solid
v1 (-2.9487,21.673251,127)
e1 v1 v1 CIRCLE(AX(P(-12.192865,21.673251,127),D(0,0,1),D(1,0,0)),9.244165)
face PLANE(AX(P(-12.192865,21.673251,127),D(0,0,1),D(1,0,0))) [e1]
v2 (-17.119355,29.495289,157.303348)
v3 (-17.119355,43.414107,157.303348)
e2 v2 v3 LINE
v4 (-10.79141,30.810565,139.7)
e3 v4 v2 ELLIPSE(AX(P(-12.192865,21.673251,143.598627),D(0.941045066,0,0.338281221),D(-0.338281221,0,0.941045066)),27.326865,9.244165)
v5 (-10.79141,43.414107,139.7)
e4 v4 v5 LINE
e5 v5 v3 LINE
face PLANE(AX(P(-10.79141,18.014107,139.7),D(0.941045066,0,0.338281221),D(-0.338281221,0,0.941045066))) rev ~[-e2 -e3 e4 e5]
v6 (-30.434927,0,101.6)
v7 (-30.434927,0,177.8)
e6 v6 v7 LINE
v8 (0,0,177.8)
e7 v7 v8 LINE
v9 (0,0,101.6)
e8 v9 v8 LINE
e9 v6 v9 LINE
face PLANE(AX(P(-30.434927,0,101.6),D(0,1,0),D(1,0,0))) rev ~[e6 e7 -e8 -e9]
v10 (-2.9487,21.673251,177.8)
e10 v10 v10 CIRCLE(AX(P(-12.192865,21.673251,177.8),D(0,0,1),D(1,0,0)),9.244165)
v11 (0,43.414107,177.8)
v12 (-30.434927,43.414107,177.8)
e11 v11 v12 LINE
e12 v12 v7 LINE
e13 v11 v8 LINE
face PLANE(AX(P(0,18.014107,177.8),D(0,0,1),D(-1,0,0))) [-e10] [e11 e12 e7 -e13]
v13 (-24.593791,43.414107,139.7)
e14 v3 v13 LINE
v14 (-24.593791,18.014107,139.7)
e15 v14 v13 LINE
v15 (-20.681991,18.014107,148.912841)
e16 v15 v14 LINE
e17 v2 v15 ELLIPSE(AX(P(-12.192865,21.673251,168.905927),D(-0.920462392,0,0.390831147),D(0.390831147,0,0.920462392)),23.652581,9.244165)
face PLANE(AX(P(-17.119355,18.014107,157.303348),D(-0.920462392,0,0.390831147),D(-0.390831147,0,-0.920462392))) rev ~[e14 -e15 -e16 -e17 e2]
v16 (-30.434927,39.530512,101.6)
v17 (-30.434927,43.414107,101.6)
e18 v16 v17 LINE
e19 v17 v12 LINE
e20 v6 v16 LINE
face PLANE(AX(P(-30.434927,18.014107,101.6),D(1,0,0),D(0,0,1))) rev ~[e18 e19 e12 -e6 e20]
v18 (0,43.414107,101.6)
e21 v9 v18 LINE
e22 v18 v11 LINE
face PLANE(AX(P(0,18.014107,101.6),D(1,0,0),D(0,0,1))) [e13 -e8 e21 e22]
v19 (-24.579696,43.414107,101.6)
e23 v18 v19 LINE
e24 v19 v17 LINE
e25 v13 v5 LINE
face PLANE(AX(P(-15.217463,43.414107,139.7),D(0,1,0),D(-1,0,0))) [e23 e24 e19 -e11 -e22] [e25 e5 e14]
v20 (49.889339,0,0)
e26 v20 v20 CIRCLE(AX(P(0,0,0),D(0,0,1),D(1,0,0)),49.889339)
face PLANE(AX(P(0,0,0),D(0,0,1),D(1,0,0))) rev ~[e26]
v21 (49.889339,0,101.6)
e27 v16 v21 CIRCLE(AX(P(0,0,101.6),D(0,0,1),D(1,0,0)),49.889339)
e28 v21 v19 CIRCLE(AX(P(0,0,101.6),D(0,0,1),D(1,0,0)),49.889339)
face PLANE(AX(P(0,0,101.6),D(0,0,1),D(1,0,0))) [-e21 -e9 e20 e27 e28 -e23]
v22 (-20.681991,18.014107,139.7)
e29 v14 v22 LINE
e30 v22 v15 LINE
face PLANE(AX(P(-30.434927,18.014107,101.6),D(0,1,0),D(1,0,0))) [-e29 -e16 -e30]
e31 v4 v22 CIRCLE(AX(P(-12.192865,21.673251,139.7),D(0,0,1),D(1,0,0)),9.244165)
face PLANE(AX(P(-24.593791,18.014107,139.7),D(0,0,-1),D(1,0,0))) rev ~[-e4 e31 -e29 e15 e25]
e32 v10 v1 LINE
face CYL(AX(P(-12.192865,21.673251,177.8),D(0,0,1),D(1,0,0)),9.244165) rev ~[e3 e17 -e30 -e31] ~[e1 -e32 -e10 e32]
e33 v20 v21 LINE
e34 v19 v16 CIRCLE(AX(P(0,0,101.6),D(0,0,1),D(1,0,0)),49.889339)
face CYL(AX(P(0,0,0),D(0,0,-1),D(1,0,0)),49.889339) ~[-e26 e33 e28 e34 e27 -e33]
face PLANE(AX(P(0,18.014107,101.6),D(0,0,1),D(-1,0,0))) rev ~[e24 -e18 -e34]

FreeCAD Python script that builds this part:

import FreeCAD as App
import Part
import Sketcher
from FreeCAD import Vector
Q = App.Units.Quantity


def add_polygon(sketch, points):
    """Adds a closed chain of lines whose ends are joined by coincident constraints."""
    first, n = sketch.GeometryCount, len(points)
    for a, b in zip(points, points[1:] + points[:1]):
        sketch.addGeometry(Part.LineSegment(App.Vector(*a, 0), App.Vector(*b, 0)), False)
    for i in range(n):
        sketch.addConstraint(Sketcher.Constraint("Coincident", first + i, 2, first + (i + 1) % n, 1))

doc = App.newDocument("Part")
body = doc.addObject("PartDesign::Body", "Body")

# Sketch on XY plane
sketch1 = body.newObject("Sketcher::SketchObject", "Sketch")
sketch1.AttachmentSupport = (doc.getObject("XY_Plane"), [""])
sketch1.MapMode = "FlatFace"
sketch1.addGeometry(Part.Circle(Vector(0, 0, 0), Vector(0, 0, 1), 50), False)
sketch1.addConstraint([
    Sketcher.Constraint("Coincident", 0, 3, -1, 1),
    Sketcher.Constraint("Diameter", 0, Q("99.778678 mm")),
])
pad1 = body.newObject("PartDesign::Pad", "Pad")
pad1.Profile = sketch1
pad1.Length = Q("4 in")

# Sketch on XY plane
sketch2 = body.newObject("Sketcher::SketchObject", "Sketch001")
sketch2.AttachmentSupport = (doc.getObject("XY_Plane"), [""])
sketch2.MapMode = "FlatFace"
sketch2.AttachmentOffset = App.Placement(Vector(0, 0, 4 * 25.4), App.Rotation())
add_polygon(sketch2, [(-30, 18), (-30, 0), (0, 0), (0, 18)])  # lines 0-3
sketch2.addConstraint([
    Sketcher.Constraint("Vertical", 0),
    Sketcher.Constraint("Horizontal", 1),
    Sketcher.Constraint("Vertical", 2),
    Sketcher.Constraint("Horizontal", 3),
    Sketcher.Constraint("Coincident", 1, 2, -1, 1),
    Sketcher.Constraint("DistanceX", 1, 1, 1, 2, Q("30.434927 mm")),
    Sketcher.Constraint("DistanceY", 0, 2, 0, 1, Q("18.014107 mm")),
])
pad2 = body.newObject("PartDesign::Pad", "Pad001")
pad2.Profile = sketch2
pad2.Length = Q("3 in")

# Sketch on XZ plane
sketch3 = body.newObject("Sketcher::SketchObject", "Sketch002")
sketch3.AttachmentSupport = (doc.getObject("XZ_Plane"), [""])
sketch3.MapMode = "FlatFace"
sketch3.AttachmentOffset = App.Placement(Vector(0, 0, -18.014107), App.Rotation())
add_polygon(sketch3, [(0, 178), (0, 102), (-30, 102), (-30, 178)])  # lines 0-3
add_polygon(sketch3, [(-25, 140), (-11, 140), (-17, 157)])  # lines 4-6
sketch3.addConstraint([
    Sketcher.Constraint("Vertical", 0),
    Sketcher.Constraint("Horizontal", 1),
    Sketcher.Constraint("Vertical", 2),
    Sketcher.Constraint("Horizontal", 3),
    Sketcher.Constraint("Horizontal", 4),
    Sketcher.Constraint("PointOnObject", 0, 2, -2),
    Sketcher.Constraint("DistanceY", 0, 2, 0, 1, Q("3 in")),
    Sketcher.Constraint("DistanceY", -1, 1, 0, 2, Q("4 in")),
    Sketcher.Constraint("DistanceY", -1, 1, 4, 2, Q("5.5 in")),
    Sketcher.Constraint("DistanceX", 4, 1, 4, 2, Q("13.802381 mm")),
    Sketcher.Constraint("Distance", 5, Q("18.706169 mm")),
    Sketcher.Constraint("DistanceX", 1, 2, 1, 1, Q("30.434927 mm")),
    Sketcher.Constraint("DistanceX", 4, 2, -1, 1, Q("10.79141 mm")),
    Sketcher.Constraint("DistanceY", -1, 1, 5, 2, Q("157.303348 mm")),
])
pad3 = body.newObject("PartDesign::Pad", "Pad002")
pad3.Profile = sketch3
pad3.Length = Q("1 in")
pad3.Reversed = True

# Sketch on XY plane
sketch4 = body.newObject("Sketcher::SketchObject", "Sketch003")
sketch4.AttachmentSupport = (doc.getObject("XY_Plane"), [""])
sketch4.MapMode = "FlatFace"
sketch4.AttachmentOffset = App.Placement(Vector(0, 0, 7 * 25.4), App.Rotation())
sketch4.addGeometry(Part.Circle(Vector(-12, 22, 0), Vector(0, 0, 1), 9), False)
sketch4.addConstraint([
    Sketcher.Constraint("Diameter", 0, Q("18.48833 mm")),
    Sketcher.Constraint("DistanceY", -1, 1, 0, 3, Q("21.673251 mm")),
    Sketcher.Constraint("DistanceX", 0, 3, -1, 1, Q("12.192865 mm")),
])
pocket1 = body.newObject("PartDesign::Pocket", "Pocket")
pocket1.Profile = sketch4
pocket1.Length = Q("2 in")

doc.recompute()
